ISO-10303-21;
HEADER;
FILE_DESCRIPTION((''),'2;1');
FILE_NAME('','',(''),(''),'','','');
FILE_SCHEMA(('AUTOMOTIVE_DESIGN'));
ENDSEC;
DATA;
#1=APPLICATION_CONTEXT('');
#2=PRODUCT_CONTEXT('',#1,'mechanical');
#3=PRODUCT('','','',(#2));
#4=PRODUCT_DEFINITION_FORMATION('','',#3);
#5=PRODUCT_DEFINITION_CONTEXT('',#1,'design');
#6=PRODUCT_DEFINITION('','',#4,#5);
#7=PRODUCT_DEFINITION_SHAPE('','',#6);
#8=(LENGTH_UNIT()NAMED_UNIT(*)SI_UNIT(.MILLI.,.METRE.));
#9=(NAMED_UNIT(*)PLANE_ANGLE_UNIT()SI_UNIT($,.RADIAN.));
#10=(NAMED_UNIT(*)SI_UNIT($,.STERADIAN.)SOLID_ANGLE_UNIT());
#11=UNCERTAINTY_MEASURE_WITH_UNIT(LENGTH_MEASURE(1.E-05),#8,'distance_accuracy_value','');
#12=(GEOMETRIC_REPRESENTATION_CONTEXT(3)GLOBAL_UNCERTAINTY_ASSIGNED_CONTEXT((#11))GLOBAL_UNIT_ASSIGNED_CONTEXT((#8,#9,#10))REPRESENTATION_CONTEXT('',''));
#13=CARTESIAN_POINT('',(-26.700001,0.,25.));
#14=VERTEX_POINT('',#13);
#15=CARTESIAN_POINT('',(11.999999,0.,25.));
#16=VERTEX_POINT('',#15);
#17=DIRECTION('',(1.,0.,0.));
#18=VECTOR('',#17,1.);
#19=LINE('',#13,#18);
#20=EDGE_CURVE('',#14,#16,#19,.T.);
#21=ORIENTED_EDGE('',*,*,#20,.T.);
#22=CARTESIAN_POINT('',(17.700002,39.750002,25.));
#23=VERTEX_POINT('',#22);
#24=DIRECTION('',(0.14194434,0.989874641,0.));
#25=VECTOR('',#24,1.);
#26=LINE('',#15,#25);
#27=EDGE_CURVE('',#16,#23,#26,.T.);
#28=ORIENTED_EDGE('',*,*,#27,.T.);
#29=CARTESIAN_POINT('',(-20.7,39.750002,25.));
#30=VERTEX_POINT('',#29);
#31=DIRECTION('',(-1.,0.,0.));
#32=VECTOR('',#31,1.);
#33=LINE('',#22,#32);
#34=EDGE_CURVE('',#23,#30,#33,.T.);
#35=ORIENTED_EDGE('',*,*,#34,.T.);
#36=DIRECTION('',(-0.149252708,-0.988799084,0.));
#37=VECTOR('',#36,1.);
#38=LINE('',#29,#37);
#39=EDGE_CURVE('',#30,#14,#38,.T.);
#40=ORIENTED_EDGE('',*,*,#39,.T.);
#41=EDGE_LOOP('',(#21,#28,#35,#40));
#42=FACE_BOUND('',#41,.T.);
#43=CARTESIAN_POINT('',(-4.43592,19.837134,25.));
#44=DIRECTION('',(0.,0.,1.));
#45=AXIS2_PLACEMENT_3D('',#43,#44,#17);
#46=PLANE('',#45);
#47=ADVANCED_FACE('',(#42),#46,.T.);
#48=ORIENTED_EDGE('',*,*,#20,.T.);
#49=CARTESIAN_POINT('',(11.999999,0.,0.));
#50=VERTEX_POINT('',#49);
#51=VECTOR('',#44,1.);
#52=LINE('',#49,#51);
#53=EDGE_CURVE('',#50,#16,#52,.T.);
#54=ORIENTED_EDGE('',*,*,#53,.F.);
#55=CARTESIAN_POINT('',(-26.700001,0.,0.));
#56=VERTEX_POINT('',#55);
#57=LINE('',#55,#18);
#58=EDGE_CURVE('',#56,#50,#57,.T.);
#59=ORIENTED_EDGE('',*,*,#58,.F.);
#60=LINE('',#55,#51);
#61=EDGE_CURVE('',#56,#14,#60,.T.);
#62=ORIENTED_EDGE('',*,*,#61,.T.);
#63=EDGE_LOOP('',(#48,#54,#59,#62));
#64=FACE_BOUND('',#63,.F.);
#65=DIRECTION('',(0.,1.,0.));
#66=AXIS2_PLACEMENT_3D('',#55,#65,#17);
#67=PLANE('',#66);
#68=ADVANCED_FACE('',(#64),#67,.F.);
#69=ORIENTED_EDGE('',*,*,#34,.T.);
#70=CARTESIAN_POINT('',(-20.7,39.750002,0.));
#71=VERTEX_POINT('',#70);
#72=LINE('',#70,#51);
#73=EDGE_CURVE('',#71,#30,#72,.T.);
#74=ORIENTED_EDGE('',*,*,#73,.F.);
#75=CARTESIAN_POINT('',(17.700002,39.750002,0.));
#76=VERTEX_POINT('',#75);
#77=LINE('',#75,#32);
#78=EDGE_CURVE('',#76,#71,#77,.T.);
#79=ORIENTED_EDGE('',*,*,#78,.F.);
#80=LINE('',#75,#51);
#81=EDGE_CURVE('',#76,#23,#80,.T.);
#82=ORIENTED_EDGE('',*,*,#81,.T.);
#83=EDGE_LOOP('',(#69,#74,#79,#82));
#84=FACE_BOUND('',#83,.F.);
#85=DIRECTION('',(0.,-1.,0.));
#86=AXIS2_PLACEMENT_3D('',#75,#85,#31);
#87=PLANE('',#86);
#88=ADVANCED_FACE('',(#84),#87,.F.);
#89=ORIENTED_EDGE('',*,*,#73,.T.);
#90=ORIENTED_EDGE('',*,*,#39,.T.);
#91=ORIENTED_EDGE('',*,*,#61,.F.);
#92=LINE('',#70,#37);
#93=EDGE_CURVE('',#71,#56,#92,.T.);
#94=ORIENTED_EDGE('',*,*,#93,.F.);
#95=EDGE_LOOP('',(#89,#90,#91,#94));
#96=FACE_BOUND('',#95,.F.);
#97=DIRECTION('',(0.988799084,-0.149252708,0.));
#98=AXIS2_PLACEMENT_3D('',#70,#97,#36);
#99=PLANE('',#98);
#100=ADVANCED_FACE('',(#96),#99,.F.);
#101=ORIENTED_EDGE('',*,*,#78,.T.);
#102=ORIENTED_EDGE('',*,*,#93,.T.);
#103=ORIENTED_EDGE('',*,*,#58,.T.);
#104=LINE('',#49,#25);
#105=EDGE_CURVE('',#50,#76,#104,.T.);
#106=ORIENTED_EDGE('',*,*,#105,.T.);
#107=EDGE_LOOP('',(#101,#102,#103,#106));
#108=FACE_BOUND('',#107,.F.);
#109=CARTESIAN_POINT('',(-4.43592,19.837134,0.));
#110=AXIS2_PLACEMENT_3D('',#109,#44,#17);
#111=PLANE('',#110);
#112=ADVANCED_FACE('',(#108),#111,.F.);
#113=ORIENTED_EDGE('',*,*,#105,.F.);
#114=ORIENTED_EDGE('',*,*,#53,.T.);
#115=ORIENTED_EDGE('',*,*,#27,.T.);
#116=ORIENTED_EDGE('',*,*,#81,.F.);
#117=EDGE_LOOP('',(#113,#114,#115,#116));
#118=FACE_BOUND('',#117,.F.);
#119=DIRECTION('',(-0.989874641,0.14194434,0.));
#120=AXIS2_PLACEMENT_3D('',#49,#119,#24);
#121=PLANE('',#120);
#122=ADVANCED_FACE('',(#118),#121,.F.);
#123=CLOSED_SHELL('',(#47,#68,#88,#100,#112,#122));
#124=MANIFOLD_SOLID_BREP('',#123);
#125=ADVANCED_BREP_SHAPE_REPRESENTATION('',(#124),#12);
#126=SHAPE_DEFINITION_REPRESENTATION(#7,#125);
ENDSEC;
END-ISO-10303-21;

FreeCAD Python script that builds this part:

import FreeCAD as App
import Part
import Sketcher


def add_polygon(sketch, points):
    """Adds a closed chain of lines whose ends are joined by coincident constraints."""
    first, n = sketch.GeometryCount, len(points)
    for a, b in zip(points, points[1:] + points[:1]):
        sketch.addGeometry(Part.LineSegment(App.Vector(*a, 0), App.Vector(*b, 0)), False)
    for i in range(n):
        sketch.addConstraint(Sketcher.Constraint("Coincident", first + i, 2, first + (i + 1) % n, 1))

doc = App.newDocument("Part")
body = doc.addObject("PartDesign::Body", "Body")

sketch1 = body.newObject("Sketcher::SketchObject", "Sketch")
sketch1.AttachmentSupport = (doc.getObject("XY_Plane"), [""])
sketch1.MapMode = "FlatFace"
add_polygon(sketch1, [(18, 40), (-21, 40), (-27, 0), (12, 0)])
sketch1.addConstraint(Sketcher.Constraint("Horizontal", 0))
sketch1.addConstraint(Sketcher.Constraint("Horizontal", 2))
sketch1.addConstraint(Sketcher.Constraint("PointOnObject", 1, 2, -1))
sketch1.addConstraint(Sketcher.Constraint("DistanceX", 0, 2, 0, 1, 38.400002))
sketch1.addConstraint(Sketcher.Constraint("DistanceX", 2, 1, 2, 2, 38.7))
sketch1.addConstraint(Sketcher.Constraint("DistanceX", -1, 1, 2, 2, 11.999999))
sketch1.addConstraint(Sketcher.Constraint("DistanceX", 1, 2, 0, 2, 6.000001))
sketch1.addConstraint(Sketcher.Constraint("Distance", 1, 40.200282))
pad1 = body.newObject("PartDesign::Pad", "Pad")
pad1.Profile = sketch1
pad1.Length = 25

doc.recompute()
